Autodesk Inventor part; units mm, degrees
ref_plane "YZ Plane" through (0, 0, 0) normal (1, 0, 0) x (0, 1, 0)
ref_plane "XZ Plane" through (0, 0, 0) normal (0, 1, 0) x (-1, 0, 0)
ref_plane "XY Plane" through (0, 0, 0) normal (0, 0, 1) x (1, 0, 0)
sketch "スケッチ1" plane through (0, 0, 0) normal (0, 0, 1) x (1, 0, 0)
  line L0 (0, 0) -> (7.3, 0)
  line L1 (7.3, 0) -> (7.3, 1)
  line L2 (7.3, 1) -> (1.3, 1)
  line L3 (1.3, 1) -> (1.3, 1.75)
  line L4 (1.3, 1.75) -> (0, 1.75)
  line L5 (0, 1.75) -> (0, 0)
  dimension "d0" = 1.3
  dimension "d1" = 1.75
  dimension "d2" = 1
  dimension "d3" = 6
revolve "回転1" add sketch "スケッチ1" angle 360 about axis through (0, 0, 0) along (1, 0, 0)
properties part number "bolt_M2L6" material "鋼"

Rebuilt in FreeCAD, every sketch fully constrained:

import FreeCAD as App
import Part
import Sketcher

V = App.Vector


def add_polygon(sketch, points):
    """Adds a closed chain of lines whose ends are joined by coincident constraints."""
    first, n = sketch.GeometryCount, len(points)
    for a, b in zip(points, points[1:] + points[:1]):
        sketch.addGeometry(Part.LineSegment(App.Vector(*a, 0), App.Vector(*b, 0)), False)
    for i in range(n):
        sketch.addConstraint(Sketcher.Constraint("Coincident", first + i, 2, first + (i + 1) % n, 1))

doc = App.newDocument("Part")
body = doc.addObject("PartDesign::Body", "Body")

sketch1 = body.newObject("Sketcher::SketchObject", "Sketch")
sketch1.AttachmentSupport = (doc.getObject("XY_Plane"), [""])
sketch1.MapMode = "FlatFace"
add_polygon(sketch1, [(0, 1.8), (0, 0), (7.3, 0), (7.3, 1), (1.3, 1), (1.3, 1.8)])
sketch1.addConstraint(Sketcher.Constraint("Vertical", 0))
sketch1.addConstraint(Sketcher.Constraint("Horizontal", 1))
sketch1.addConstraint(Sketcher.Constraint("Vertical", 2))
sketch1.addConstraint(Sketcher.Constraint("Horizontal", 3))
sketch1.addConstraint(Sketcher.Constraint("Vertical", 4))
sketch1.addConstraint(Sketcher.Constraint("Horizontal", 5))
sketch1.addConstraint(Sketcher.Constraint("Coincident", 0, 2, -1, 1))
sketch1.addConstraint(Sketcher.Constraint("DistanceX", 3, 2, 3, 1, 6.0))
sketch1.addConstraint(Sketcher.Constraint("DistanceY", 2, 1, 2, 2, 1.0))
sketch1.addConstraint(Sketcher.Constraint("DistanceX", 5, 2, 5, 1, 1.3))
sketch1.addConstraint(Sketcher.Constraint("DistanceY", 0, 2, 0, 1, 1.75))
revolution = body.newObject("PartDesign::Revolution", "Revolution")
revolution.Profile = sketch1
revolution.ReferenceAxis = (sketch1, ["H_Axis"])
revolution.Angle = 360

doc.recompute()
